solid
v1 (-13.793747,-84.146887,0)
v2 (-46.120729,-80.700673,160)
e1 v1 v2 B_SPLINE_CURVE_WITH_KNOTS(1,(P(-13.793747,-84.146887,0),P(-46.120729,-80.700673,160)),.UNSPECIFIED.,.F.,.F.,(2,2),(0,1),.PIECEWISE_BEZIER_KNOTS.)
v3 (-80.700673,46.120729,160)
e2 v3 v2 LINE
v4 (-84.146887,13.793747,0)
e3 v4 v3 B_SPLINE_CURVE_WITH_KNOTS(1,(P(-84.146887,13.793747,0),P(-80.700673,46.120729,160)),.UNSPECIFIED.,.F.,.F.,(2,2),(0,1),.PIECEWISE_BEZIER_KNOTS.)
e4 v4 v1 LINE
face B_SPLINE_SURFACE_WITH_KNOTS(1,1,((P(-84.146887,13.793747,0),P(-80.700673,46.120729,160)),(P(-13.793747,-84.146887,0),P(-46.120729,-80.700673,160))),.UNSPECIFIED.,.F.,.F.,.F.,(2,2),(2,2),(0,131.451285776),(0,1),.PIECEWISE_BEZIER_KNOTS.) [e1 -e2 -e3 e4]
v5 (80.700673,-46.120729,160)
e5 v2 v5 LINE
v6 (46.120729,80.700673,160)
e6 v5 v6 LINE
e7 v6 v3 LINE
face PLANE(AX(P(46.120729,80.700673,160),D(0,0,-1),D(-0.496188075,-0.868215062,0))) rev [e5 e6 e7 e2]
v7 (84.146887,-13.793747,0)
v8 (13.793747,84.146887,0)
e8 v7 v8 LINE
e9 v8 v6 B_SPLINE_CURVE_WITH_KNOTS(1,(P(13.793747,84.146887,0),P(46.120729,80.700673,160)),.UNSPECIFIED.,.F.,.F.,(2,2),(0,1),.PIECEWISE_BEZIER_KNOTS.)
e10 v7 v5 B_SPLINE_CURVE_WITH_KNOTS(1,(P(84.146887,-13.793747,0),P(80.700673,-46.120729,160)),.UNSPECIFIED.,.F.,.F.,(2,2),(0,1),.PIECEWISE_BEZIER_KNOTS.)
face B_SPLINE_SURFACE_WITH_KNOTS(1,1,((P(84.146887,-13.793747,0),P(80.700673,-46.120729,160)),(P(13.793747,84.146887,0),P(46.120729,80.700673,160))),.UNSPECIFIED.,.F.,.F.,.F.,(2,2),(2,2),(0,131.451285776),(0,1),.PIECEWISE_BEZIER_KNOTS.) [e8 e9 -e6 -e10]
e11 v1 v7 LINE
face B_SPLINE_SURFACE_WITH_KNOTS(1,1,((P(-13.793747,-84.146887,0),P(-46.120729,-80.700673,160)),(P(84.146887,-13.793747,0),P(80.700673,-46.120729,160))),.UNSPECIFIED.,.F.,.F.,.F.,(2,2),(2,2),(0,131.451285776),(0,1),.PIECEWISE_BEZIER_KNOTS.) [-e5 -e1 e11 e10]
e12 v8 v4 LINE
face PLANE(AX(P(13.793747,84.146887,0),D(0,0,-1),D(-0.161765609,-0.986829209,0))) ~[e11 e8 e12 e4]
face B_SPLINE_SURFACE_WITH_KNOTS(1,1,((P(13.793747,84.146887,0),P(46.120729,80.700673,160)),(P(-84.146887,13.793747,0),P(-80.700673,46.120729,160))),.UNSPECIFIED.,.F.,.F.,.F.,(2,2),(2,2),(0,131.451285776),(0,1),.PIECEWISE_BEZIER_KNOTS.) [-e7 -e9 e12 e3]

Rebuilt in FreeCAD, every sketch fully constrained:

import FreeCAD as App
import Part
import Sketcher
from FreeCAD import Vector


def add_polygon(sketch, points):
    """Adds a closed chain of lines whose ends are joined by coincident constraints."""
    first, n = sketch.GeometryCount, len(points)
    for a, b in zip(points, points[1:] + points[:1]):
        sketch.addGeometry(Part.LineSegment(App.Vector(*a, 0), App.Vector(*b, 0)), False)
    for i in range(n):
        sketch.addConstraint(Sketcher.Constraint("Coincident", first + i, 2, first + (i + 1) % n, 1))

doc = App.newDocument("Part")
body = doc.addObject("PartDesign::Body", "Body")

sketch1 = body.newObject("Sketcher::SketchObject", "Sketch")
sketch1.AttachmentSupport = (doc.getObject("XY_Plane"), [""])
sketch1.MapMode = "FlatFace"
add_polygon(sketch1, [(13.793747, 84.146887), (-84.146887, 13.793747), (-13.793747, -84.146887), (84.146887, -13.793747)])
sketch1.addConstraint(Sketcher.Constraint("Symmetric", 0, 2, 2, 2, -1, 1))
sketch1.addConstraint(Sketcher.Constraint("Symmetric", 1, 2, 3, 2, -1, 1))
sketch1.addConstraint(Sketcher.Constraint("Perpendicular", 0, 1))
sketch1.addConstraint(Sketcher.Constraint("Equal", 0, 1))
sketch1.addConstraint(Sketcher.Constraint("DistanceX", 0, 2, 1, 2, 70.35314))
sketch1.addConstraint(Sketcher.Constraint("Distance", 0, 120.589934))

sketch2 = body.newObject("Sketcher::SketchObject", "Sketch001")
sketch2.AttachmentSupport = (doc.getObject("XY_Plane"), [""])
sketch2.MapMode = "FlatFace"
sketch2.AttachmentOffset = App.Placement(Vector(0, 0, 160), App.Rotation())
add_polygon(sketch2, [(-80.700673, 46.120729), (-46.120729, -80.700673), (80.700673, -46.120729), (46.120729, 80.700673)])
sketch2.addConstraint(Sketcher.Constraint("Symmetric", 0, 2, 2, 2, -1, 1))
sketch2.addConstraint(Sketcher.Constraint("Symmetric", 1, 2, 3, 2, -1, 1))
sketch2.addConstraint(Sketcher.Constraint("Perpendicular", 0, 1))
sketch2.addConstraint(Sketcher.Constraint("Equal", 0, 1))
sketch2.addConstraint(Sketcher.Constraint("DistanceX", 0, 2, 1, 2, 126.821402))
sketch2.addConstraint(Sketcher.Constraint("DistanceX", 0, 2, -1, 1, 46.120729))

additiveloft = body.newObject("PartDesign::AdditiveLoft", "AdditiveLoft")
additiveloft.Profile = sketch1
additiveloft.Sections = [sketch2]

doc.recompute()
